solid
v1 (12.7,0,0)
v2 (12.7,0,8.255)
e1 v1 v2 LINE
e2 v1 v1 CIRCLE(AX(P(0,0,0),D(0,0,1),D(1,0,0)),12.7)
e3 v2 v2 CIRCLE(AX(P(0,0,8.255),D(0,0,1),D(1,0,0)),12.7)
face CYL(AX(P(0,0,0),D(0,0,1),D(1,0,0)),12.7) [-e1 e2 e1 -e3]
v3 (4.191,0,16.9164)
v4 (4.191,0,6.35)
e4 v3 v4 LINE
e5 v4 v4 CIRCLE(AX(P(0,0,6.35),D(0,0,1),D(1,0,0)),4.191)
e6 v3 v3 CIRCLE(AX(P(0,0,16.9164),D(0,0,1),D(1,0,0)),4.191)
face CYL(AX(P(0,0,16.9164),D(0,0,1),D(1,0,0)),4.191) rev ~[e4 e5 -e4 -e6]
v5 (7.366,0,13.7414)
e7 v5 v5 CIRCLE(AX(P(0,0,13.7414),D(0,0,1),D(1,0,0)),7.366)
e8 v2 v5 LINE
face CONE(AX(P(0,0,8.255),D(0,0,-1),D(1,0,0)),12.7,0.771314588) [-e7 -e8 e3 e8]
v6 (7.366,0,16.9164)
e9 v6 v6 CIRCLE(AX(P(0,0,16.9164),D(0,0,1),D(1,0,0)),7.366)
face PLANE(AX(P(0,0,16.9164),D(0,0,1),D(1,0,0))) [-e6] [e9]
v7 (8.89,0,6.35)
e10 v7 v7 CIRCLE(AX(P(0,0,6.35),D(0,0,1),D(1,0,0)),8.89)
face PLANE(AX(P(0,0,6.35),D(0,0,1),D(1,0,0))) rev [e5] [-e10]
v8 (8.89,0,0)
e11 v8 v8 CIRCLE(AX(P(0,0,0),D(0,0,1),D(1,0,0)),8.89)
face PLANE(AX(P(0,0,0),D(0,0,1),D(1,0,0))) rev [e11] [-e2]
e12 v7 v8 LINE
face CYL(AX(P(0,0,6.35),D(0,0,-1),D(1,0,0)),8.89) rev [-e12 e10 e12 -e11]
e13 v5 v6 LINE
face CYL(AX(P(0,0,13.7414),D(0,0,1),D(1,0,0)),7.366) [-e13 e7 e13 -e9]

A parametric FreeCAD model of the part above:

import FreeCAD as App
import Part
import Sketcher

V = App.Vector
Q = App.Units.Quantity


def add_polygon(sketch, points):
    """Adds a closed chain of lines whose ends are joined by coincident constraints."""
    first, n = sketch.GeometryCount, len(points)
    for a, b in zip(points, points[1:] + points[:1]):
        sketch.addGeometry(Part.LineSegment(App.Vector(*a, 0), App.Vector(*b, 0)), False)
    for i in range(n):
        sketch.addConstraint(Sketcher.Constraint("Coincident", first + i, 2, first + (i + 1) % n, 1))

doc = App.newDocument("Part")
params = doc.addObject("Spreadsheet::Sheet", "Params")
for row, (alias, value) in enumerate([
    ("sketch1_width", "0.15 in"),
    ("sketch1_width2", "0.29 in"),
    ("sketch1_width3", "0.35 in"),
    ("sketch1_height", "0.25 in"),
    ("sketch1_height2", "0.325 in"),
    ("revolution_angle", "360 deg"),
    ("sketch2_diameter", "0.33 in"),
    ("pocket1_length", "1 in"),
], start=1):
    params.set(f"A{row}", alias)
    params.set(f"B{row}", "=" + value)
    params.setAlias(f"B{row}", alias)

body = doc.addObject("PartDesign::Body", "Body")

# Sketch on XZ plane
sketch1 = body.newObject("Sketcher::SketchObject", "Sketch")
sketch1.AttachmentSupport = (doc.getObject("XZ_Plane"), [""])
sketch1.MapMode = "FlatFace"
add_polygon(sketch1, [(8.9, 6.3), (8.9, 0), (12.7, 0), (12.7, 8.3), (7.4, 13.7), (7.4, 16.9), (0, 16.9), (0, 6.3)])  # lines 0-7
sketch1.addConstraint([
    Sketcher.Constraint("Vertical", 0),
    Sketcher.Constraint("Horizontal", 1),
    Sketcher.Constraint("Vertical", 2),
    Sketcher.Constraint("Vertical", 4),
    Sketcher.Constraint("Horizontal", 5),
    Sketcher.Constraint("Vertical", 6),
    Sketcher.Constraint("Horizontal", 7),
    Sketcher.Constraint("PointOnObject", 0, 2, -1),
    Sketcher.Constraint("PointOnObject", 5, 2, -2),
    Sketcher.Constraint("DistanceX", 1, 1, 1, 2, Q("0.15 in")),
    Sketcher.Constraint("DistanceX", 5, 2, 5, 1, Q("0.29 in")),
    Sketcher.Constraint("DistanceX", 7, 1, 7, 2, Q("0.35 in")),
    Sketcher.Constraint("DistanceY", 0, 2, 0, 1, Q("0.25 in")),
    Sketcher.Constraint("DistanceY", 2, 1, 2, 2, Q("0.325 in")),
    Sketcher.Constraint("DistanceY", 4, 1, 4, 2, Q("0.125 in")),
    Sketcher.Constraint("DistanceY", 6, 2, 6, 1, Q("0.416 in")),
])
sketch1.setExpression("Constraints[17]", "Params.sketch1_width")
sketch1.setExpression("Constraints[18]", "Params.sketch1_width2")
sketch1.setExpression("Constraints[19]", "Params.sketch1_width3")
sketch1.setExpression("Constraints[20]", "Params.sketch1_height")
sketch1.setExpression("Constraints[21]", "Params.sketch1_height2")
revolution = body.newObject("PartDesign::Revolution", "Revolution")
revolution.Profile = sketch1
revolution.ReferenceAxis = (sketch1, ["V_Axis"])
revolution.setExpression("Angle", "Params.revolution_angle")

# Sketch on XY plane
sketch2 = body.newObject("Sketcher::SketchObject", "Sketch001")
sketch2.AttachmentSupport = (doc.getObject("XY_Plane"), [""])
sketch2.MapMode = "FlatFace"
sketch2.AttachmentOffset = App.Placement(V(0, 0, 0.666 * 25.4), App.Rotation())
sketch2.addGeometry(Part.Circle(V(0, 0, 0), V(0, 0, 1), 4.2), False)
sketch2.addConstraint([
    Sketcher.Constraint("Coincident", 0, 3, -1, 1),
    Sketcher.Constraint("Diameter", 0, Q("0.33 in")),
])
sketch2.setExpression("Constraints[1]", "Params.sketch2_diameter")
pocket1 = body.newObject("PartDesign::Pocket", "Pocket")
pocket1.Profile = sketch2
pocket1.setExpression("Length", "Params.pocket1_length")

doc.recompute()
